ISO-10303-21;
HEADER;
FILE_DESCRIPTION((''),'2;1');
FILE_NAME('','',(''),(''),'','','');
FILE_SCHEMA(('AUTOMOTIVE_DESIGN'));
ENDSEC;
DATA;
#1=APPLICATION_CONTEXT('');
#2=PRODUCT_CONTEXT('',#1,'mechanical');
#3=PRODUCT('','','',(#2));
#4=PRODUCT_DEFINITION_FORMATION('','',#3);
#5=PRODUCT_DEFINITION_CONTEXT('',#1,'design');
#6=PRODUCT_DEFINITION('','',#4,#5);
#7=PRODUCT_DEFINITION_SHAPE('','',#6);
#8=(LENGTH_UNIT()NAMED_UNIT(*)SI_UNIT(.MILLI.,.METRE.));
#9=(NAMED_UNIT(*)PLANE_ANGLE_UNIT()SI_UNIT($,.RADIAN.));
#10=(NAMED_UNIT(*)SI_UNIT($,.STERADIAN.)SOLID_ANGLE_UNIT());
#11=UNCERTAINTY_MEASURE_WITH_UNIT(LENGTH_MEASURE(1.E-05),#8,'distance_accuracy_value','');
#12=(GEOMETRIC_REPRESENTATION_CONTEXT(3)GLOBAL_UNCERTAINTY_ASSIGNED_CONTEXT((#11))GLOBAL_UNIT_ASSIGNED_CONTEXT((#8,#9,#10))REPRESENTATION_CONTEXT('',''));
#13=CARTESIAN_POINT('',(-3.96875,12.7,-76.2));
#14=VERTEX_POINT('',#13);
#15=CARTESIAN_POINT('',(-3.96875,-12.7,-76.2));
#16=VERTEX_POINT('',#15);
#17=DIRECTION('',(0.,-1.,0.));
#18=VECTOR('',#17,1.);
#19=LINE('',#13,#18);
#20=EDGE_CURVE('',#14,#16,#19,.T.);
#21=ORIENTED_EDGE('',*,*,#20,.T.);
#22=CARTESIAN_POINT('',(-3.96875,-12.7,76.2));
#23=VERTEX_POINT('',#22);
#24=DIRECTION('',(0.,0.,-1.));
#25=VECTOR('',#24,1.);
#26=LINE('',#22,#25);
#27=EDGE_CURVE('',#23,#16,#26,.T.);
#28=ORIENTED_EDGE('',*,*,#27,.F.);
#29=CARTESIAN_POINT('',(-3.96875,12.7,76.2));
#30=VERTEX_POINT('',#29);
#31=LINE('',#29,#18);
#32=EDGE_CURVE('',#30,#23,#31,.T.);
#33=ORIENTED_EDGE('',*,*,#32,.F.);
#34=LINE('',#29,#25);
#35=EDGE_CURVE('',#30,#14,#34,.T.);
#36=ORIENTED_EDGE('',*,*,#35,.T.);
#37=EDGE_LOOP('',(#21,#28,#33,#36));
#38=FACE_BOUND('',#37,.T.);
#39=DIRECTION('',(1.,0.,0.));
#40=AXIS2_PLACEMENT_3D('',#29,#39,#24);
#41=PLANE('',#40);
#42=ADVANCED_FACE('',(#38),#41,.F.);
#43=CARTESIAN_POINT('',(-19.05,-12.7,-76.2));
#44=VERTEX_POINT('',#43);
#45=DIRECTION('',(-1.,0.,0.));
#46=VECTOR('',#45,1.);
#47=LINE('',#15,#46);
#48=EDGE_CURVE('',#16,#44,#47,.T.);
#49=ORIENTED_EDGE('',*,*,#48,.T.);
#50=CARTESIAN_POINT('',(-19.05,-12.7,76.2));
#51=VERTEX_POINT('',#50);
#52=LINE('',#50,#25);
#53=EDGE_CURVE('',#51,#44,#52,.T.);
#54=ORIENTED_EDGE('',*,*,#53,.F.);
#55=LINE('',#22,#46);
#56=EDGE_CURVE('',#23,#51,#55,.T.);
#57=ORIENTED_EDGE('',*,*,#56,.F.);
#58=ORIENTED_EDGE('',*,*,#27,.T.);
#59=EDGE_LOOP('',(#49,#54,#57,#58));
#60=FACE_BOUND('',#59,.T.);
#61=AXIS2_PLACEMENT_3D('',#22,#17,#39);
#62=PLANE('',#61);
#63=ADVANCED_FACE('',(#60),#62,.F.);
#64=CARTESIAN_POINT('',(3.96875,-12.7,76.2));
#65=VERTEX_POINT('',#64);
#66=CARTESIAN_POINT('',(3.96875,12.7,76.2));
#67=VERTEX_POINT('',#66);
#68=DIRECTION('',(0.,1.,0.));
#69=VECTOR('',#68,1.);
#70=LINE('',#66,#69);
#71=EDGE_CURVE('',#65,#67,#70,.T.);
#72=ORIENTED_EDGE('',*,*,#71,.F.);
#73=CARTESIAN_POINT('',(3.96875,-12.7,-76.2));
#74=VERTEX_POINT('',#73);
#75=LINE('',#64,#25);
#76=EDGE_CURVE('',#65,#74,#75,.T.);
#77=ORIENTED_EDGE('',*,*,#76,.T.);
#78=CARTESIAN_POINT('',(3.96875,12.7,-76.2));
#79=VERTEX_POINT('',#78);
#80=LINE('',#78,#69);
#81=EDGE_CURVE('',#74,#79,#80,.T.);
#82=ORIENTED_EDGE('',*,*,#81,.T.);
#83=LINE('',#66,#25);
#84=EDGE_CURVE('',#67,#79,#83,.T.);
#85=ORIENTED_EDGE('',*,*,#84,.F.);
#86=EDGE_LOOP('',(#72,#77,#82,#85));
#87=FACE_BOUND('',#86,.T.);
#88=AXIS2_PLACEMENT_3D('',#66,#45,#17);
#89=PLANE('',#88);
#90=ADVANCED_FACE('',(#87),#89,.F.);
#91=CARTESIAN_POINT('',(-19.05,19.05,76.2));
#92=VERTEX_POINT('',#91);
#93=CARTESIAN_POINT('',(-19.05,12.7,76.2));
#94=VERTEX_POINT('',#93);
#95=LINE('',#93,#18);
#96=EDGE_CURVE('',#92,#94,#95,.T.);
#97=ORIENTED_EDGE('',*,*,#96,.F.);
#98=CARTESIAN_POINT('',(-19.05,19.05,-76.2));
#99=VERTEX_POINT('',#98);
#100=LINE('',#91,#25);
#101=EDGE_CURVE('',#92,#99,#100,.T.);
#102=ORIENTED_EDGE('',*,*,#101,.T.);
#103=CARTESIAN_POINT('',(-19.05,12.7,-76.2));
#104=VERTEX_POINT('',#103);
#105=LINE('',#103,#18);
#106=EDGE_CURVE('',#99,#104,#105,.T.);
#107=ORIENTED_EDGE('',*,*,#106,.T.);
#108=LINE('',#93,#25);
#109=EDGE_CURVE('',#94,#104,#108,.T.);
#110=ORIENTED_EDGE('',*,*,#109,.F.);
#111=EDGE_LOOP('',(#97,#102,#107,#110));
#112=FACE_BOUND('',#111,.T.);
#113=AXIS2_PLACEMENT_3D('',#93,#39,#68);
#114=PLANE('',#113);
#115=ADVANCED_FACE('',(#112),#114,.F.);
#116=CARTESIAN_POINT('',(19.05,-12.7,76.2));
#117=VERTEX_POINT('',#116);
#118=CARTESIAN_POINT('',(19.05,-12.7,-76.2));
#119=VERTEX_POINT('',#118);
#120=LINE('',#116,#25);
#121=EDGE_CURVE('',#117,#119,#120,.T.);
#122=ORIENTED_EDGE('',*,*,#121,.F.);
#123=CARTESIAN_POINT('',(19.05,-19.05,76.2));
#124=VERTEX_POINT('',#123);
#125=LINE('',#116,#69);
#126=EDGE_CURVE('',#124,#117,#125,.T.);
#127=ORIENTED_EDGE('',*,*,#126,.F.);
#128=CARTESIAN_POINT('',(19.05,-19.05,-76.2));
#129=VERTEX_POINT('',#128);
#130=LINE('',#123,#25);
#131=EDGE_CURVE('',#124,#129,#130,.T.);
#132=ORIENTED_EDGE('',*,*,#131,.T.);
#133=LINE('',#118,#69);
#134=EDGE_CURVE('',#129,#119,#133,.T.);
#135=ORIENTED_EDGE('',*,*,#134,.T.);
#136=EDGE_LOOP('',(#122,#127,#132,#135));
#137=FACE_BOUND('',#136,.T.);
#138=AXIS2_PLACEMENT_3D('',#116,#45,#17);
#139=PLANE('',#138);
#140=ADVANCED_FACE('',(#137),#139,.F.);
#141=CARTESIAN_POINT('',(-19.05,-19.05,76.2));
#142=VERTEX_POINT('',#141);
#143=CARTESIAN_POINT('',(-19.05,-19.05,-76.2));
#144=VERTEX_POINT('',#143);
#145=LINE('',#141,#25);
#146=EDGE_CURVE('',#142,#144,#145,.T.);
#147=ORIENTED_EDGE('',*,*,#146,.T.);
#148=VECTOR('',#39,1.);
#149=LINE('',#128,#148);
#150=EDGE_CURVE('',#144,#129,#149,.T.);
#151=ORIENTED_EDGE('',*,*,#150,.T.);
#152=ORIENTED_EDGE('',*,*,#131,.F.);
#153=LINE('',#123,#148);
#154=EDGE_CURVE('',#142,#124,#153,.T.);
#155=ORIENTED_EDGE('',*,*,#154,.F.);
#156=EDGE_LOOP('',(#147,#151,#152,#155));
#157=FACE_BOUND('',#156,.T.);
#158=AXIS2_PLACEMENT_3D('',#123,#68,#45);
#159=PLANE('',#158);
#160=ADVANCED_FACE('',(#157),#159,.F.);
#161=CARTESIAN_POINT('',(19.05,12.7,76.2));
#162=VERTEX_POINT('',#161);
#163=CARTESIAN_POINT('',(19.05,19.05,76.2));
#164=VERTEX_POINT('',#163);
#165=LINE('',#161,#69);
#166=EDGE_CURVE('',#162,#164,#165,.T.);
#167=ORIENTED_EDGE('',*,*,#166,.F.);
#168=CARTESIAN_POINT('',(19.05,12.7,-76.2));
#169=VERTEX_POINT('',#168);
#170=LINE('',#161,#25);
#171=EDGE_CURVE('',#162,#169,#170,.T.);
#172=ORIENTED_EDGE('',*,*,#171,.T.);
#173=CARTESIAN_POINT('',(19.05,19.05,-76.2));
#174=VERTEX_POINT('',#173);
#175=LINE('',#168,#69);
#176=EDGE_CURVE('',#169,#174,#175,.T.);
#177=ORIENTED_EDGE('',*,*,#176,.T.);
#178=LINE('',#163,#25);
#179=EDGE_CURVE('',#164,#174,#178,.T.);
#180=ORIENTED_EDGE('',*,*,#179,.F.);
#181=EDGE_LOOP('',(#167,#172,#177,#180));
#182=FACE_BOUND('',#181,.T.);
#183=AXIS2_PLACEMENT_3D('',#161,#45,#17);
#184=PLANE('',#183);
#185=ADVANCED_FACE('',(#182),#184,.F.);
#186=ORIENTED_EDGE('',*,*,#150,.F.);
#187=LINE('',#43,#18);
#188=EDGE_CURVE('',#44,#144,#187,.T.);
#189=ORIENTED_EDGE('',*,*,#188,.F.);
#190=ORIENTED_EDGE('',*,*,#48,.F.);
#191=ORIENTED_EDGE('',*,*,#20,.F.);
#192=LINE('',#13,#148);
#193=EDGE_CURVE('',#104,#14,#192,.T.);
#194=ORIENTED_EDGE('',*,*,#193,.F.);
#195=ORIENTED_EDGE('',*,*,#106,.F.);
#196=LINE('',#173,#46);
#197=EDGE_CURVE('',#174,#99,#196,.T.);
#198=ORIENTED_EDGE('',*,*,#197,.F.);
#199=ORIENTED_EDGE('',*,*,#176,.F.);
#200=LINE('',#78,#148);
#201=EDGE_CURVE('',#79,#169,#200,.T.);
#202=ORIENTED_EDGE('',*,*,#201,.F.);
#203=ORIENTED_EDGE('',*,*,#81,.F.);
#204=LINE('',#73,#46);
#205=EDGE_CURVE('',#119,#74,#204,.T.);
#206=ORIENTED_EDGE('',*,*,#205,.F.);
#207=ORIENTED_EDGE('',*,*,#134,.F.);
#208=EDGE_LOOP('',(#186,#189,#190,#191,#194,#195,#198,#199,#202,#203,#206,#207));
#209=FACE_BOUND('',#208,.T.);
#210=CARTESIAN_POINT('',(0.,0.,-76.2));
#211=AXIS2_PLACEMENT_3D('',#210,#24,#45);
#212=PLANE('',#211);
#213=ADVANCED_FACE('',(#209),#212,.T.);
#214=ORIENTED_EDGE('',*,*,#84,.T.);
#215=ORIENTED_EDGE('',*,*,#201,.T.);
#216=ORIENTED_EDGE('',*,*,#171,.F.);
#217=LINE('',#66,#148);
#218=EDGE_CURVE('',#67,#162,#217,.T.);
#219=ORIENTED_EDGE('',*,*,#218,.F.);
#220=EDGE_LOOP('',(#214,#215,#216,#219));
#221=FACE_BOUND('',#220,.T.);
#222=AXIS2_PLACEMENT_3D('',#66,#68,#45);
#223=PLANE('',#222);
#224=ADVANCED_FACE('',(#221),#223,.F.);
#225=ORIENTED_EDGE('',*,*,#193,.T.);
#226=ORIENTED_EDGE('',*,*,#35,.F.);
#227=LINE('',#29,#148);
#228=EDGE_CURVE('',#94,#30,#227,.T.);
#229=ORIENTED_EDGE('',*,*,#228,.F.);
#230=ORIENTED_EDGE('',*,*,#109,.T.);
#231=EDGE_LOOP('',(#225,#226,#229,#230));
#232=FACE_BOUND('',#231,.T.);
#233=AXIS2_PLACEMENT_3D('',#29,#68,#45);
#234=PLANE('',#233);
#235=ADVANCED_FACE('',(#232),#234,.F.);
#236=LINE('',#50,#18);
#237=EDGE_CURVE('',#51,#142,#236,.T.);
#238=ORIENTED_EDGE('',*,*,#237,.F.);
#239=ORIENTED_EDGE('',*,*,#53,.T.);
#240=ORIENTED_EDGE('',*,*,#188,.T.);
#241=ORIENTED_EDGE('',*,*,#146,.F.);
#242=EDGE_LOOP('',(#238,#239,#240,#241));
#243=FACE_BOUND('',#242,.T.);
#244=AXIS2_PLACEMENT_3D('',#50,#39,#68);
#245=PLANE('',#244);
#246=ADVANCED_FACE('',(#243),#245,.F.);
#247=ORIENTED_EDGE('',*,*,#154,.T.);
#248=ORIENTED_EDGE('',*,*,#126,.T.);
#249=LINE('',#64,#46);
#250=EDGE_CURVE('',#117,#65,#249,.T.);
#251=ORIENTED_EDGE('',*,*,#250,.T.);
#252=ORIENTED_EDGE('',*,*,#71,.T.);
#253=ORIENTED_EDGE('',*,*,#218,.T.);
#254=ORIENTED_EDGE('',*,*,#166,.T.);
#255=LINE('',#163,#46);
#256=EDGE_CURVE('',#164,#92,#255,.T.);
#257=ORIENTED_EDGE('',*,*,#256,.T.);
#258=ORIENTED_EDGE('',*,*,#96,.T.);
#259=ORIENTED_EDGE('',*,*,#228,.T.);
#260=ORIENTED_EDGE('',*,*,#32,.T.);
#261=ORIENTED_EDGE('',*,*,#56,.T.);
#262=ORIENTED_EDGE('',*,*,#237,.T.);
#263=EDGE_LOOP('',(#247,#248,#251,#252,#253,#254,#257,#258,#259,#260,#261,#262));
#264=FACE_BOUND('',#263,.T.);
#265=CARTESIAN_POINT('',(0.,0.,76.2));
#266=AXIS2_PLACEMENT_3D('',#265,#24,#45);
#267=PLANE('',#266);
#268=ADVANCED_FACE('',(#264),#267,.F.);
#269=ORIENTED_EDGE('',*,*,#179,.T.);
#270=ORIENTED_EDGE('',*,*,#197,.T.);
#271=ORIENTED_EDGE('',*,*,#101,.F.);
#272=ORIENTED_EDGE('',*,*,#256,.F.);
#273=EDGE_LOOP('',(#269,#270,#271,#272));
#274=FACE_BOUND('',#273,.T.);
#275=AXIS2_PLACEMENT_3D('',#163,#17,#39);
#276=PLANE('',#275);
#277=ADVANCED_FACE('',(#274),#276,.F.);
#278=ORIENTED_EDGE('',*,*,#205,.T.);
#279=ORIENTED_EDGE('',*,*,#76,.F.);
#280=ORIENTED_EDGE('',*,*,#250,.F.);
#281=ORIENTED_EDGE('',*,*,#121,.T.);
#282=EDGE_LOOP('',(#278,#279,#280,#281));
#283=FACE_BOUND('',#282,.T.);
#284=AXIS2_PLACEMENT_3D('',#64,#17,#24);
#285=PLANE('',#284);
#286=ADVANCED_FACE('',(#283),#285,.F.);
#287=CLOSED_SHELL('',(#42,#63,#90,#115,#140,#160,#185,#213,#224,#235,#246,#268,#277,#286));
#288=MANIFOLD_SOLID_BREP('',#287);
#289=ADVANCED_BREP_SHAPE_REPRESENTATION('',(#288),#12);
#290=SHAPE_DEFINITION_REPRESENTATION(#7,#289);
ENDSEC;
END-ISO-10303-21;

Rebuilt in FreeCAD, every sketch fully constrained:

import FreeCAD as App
import Part
import Sketcher

V = App.Vector
Q = App.Units.Quantity

doc = App.newDocument("Part")
body = doc.addObject("PartDesign::Body", "Body")

# Sketch on XY plane
sketch1 = body.newObject("Sketcher::SketchObject", "Sketch")
sketch1.AttachmentSupport = (doc.getObject("XY_Plane"), [""])
sketch1.MapMode = "FlatFace"
sketch1.addGeometry([
    Part.LineSegment(V(3.96875, -12.7, 0), V(3.96875, 12.7, 0)),  # 0
    Part.LineSegment(V(3.96875, 12.7, 0), V(19.05, 12.7, 0)),  # 1
    Part.LineSegment(V(19.05, 12.7, 0), V(19.05, 19.05, 0)),  # 2
    Part.LineSegment(V(19.05, 19.05, 0), V(-19.05, 19.05, 0)),  # 3
    Part.LineSegment(V(-19.05, 19.05, 0), V(-19.05, 12.7, 0)),  # 4
    Part.LineSegment(V(-19.05, 12.7, 0), V(-3.96875, 12.7, 0)),  # 5
    Part.LineSegment(V(-3.96875, 12.7, 0), V(-3.96875, -12.7, 0)),  # 6
    Part.LineSegment(V(-3.96875, -12.7, 0), V(-19.05, -12.7, 0)),  # 7
    Part.LineSegment(V(-19.05, -12.7, 0), V(-19.05, -19.05, 0)),  # 8
    Part.LineSegment(V(-19.05, -19.05, 0), V(19.05, -19.05, 0)),  # 9
    Part.LineSegment(V(19.05, -19.05, 0), V(19.05, -12.7, 0)),  # 10
    Part.LineSegment(V(19.05, -12.7, 0), V(3.96875, -12.7, 0)),  # 11
], False)
sketch1.addConstraint([
    Sketcher.Constraint("Coincident", 0, 2, 1, 1),
    Sketcher.Constraint("Coincident", 1, 2, 2, 1),
    Sketcher.Constraint("Coincident", 2, 2, 3, 1),
    Sketcher.Constraint("Coincident", 3, 2, 4, 1),
    Sketcher.Constraint("Coincident", 4, 2, 5, 1),
    Sketcher.Constraint("Coincident", 5, 2, 6, 1),
    Sketcher.Constraint("Coincident", 6, 2, 7, 1),
    Sketcher.Constraint("Coincident", 7, 2, 8, 1),
    Sketcher.Constraint("Coincident", 8, 2, 9, 1),
    Sketcher.Constraint("Coincident", 9, 2, 10, 1),
    Sketcher.Constraint("Coincident", 10, 2, 11, 1),
    Sketcher.Constraint("Coincident", 11, 2, 0, 1),
    Sketcher.Constraint("Vertical", 0),
    Sketcher.Constraint("Horizontal", 1),
    Sketcher.Constraint("Vertical", 2),
    Sketcher.Constraint("Horizontal", 3),
    Sketcher.Constraint("Vertical", 4),
    Sketcher.Constraint("Horizontal", 5),
    Sketcher.Constraint("Vertical", 6),
    Sketcher.Constraint("Horizontal", 7),
    Sketcher.Constraint("Vertical", 8),
    Sketcher.Constraint("Horizontal", 9),
    Sketcher.Constraint("Vertical", 10),
    Sketcher.Constraint("Horizontal", 11),
    Sketcher.Constraint("Symmetric", 0, 2, 6, 2, -1, 1),
    Sketcher.Constraint("Symmetric", 2, 2, 8, 2, -1, 1),
    Sketcher.Constraint("Symmetric", 4, 2, 10, 2, -1, 1),
    Sketcher.Constraint("Symmetric", 1, 2, 4, 2, -2),
    Sketcher.Constraint("DistanceY", 0, 1, 0, 2, Q("1 in")),
    Sketcher.Constraint("DistanceX", 3, 2, 3, 1, Q("1.5 in")),
    Sketcher.Constraint("DistanceY", 2, 1, 2, 2, Q("0.25 in")),
    Sketcher.Constraint("DistanceX", 1, 1, 1, 2, Q("0.59375 in")),
])
pad1 = body.newObject("PartDesign::Pad", "Pad")
pad1.Profile = sketch1
pad1.Length = Q("6 in")
pad1.Midplane = True

doc.recompute()
